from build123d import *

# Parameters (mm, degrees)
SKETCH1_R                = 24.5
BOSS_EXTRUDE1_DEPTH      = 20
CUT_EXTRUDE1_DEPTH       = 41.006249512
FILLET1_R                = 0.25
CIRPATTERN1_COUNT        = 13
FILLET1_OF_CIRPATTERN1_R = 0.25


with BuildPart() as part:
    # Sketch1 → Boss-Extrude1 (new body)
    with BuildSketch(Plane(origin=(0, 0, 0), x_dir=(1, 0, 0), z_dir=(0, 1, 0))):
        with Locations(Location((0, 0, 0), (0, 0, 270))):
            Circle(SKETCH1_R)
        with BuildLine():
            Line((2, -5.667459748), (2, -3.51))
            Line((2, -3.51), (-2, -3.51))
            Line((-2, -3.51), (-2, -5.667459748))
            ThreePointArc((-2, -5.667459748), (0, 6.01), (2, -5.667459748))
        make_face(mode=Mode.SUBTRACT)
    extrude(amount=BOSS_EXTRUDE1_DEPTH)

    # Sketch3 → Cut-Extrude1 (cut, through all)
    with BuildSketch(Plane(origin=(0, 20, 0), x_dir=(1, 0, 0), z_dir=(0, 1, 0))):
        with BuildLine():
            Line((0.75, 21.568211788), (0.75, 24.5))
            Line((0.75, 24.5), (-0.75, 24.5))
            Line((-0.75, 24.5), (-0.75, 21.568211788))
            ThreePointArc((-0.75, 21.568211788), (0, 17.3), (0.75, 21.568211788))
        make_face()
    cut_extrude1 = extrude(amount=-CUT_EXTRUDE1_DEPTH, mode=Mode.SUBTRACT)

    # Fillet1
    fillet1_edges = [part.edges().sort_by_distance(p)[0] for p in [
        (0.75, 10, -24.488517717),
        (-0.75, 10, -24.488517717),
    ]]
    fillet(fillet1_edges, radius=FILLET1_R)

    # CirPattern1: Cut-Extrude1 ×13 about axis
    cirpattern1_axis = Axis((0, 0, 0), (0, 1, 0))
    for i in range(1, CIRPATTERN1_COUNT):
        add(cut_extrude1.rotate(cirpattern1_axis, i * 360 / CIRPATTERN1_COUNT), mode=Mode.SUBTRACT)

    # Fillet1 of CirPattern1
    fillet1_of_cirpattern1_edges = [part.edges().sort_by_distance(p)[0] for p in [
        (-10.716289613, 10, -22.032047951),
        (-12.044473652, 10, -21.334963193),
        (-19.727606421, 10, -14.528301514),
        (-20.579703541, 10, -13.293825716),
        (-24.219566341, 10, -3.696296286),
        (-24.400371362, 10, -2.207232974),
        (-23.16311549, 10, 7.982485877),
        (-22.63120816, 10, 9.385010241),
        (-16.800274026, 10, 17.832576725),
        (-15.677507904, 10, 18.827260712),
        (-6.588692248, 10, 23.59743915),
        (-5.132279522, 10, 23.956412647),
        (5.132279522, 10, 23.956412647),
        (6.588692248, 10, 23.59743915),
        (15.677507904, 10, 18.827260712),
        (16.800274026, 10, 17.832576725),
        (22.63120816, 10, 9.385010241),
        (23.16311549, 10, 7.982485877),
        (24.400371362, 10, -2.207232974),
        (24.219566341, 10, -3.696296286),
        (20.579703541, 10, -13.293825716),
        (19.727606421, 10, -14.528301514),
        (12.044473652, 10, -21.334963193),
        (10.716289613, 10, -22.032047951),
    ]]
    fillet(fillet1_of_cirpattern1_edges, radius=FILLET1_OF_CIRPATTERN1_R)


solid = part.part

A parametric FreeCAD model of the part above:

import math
import FreeCAD as App
import Part
import Sketcher

V = App.Vector


def edges_at(feature, points):
    """Names of the edges that pass closest to the given points."""
    edges = feature.Shape.Edges
    near = lambda p: min(range(len(edges)), key=lambda i: edges[i].distToShape(Part.Vertex(*p))[0])
    return sorted({f"Edge{near(p) + 1}" for p in points})

doc = App.newDocument("Part")
params = doc.addObject("Spreadsheet::Sheet", "Params")
for row, (alias, value) in enumerate([
    ("sketch1_diameter", "49 mm"),
    ("sketch1_width", "4 mm"),
    ("sketch1_radius", "6.01 mm"),
    ("pad1_length", "20 mm"),
    ("sketch2_radius", "2.2 mm"),
    ("sketch2_width", "1.5 mm"),
    ("fillet_radius", "0.25 mm"),
    ("fillet2_radius", "0.25 mm"),
], start=1):
    params.set(f"A{row}", alias)
    params.set(f"B{row}", "=" + value)
    params.setAlias(f"B{row}", alias)

body = doc.addObject("PartDesign::Body", "Body")

# Sketch on XZ plane
sketch1 = doc.addObject("Sketcher::SketchObject", "Sketch")
body.addObject(sketch1)
sketch1.AttachmentSupport = (doc.XZ_Plane, [""])
sketch1.MapMode = "FlatFace"
sketch1.addGeometry(Part.Circle(V(0, 0, 0), V(0, 0, 1), 24.5), False)
sketch1.addGeometry(Part.ArcOfCircle(Part.Circle(V(0, 0, 0), V(0, 0, 1), 6), math.radians(109), math.radians(431)), False)
sketch1.addGeometry(Part.LineSegment(V(2, 5.7, 0), V(2, 3.5, 0)), False)
sketch1.addGeometry(Part.LineSegment(V(2, 3.5, 0), V(-2, 3.5, 0)), False)
sketch1.addGeometry(Part.LineSegment(V(-2, 3.5, 0), V(-2, 5.7, 0)), False)
sketch1.addConstraint(Sketcher.Constraint("Coincident", 1, 2, 2, 1))
sketch1.addConstraint(Sketcher.Constraint("Coincident", 2, 2, 3, 1))
sketch1.addConstraint(Sketcher.Constraint("Coincident", 3, 2, 4, 1))
sketch1.addConstraint(Sketcher.Constraint("Coincident", 4, 2, 1, 1))
sketch1.addConstraint(Sketcher.Constraint("Vertical", 2))
sketch1.addConstraint(Sketcher.Constraint("Horizontal", 3))
sketch1.addConstraint(Sketcher.Constraint("Vertical", 4))
sketch1.addConstraint(Sketcher.Constraint("Coincident", 0, 3, -1, 1))
sketch1.addConstraint(Sketcher.Constraint("Coincident", 1, 3, -1, 1))
sketch1.addConstraint(Sketcher.Constraint("Horizontal", 1, 2, 4, 2))
sketch1.addConstraint(Sketcher.Constraint("Diameter", 0, 49.0))
sketch1.addConstraint(Sketcher.Constraint("DistanceX", 3, 2, 3, 1, 4.0))
sketch1.addConstraint(Sketcher.Constraint("Radius", 1, 6.01))
sketch1.addConstraint(Sketcher.Constraint("DistanceY", -1, 1, 2, 2, 3.51))
sketch1.setExpression("Constraints[10]", "Params.sketch1_diameter")
sketch1.setExpression("Constraints[11]", "Params.sketch1_width")
sketch1.setExpression("Constraints[12]", "Params.sketch1_radius")
pad1 = doc.addObject("PartDesign::Pad", "Pad")
body.addObject(pad1)
pad1.Profile = sketch1
pad1.setExpression("Length", "Params.pad1_length")
pad1.Reversed = True

# Sketch on XZ plane
sketch2 = doc.addObject("Sketcher::SketchObject", "Sketch001")
body.addObject(sketch2)
sketch2.AttachmentSupport = (doc.XZ_Plane, [""])
sketch2.MapMode = "FlatFace"
sketch2.AttachmentOffset = App.Placement(V(0, 0, -20), App.Rotation())
sketch2.addGeometry(Part.LineSegment(V(0.8, -21.6, 0), V(0.8, -24.5, 0)), False)
sketch2.addGeometry(Part.LineSegment(V(0.8, -24.5, 0), V(-0.8, -24.5, 0)), False)
sketch2.addGeometry(Part.LineSegment(V(-0.8, -24.5, 0), V(-0.8, -21.6, 0)), False)
sketch2.addGeometry(Part.ArcOfCircle(Part.Circle(V(0, -19.5, 0), V(0, 0, 1), 2.2), math.radians(-70), math.radians(250)), False)
sketch2.addConstraint(Sketcher.Constraint("Coincident", 0, 2, 1, 1))
sketch2.addConstraint(Sketcher.Constraint("Coincident", 1, 2, 2, 1))
sketch2.addConstraint(Sketcher.Constraint("Coincident", 2, 2, 3, 2))
sketch2.addConstraint(Sketcher.Constraint("Coincident", 3, 1, 0, 1))
sketch2.addConstraint(Sketcher.Constraint("Vertical", 0))
sketch2.addConstraint(Sketcher.Constraint("Horizontal", 1))
sketch2.addConstraint(Sketcher.Constraint("Vertical", 2))
sketch2.addConstraint(Sketcher.Constraint("Symmetric", 2, 2, 3, 1, -2))
sketch2.addConstraint(Sketcher.Constraint("Radius", 3, 2.2))
sketch2.addConstraint(Sketcher.Constraint("DistanceX", 1, 2, 1, 1, 1.5))
sketch2.addConstraint(Sketcher.Constraint("DistanceY", 0, 2, 3, 3, 5.0))
sketch2.addConstraint(Sketcher.Constraint("DistanceY", 3, 3, -1, 1, 19.5))
sketch2.setExpression("Constraints[8]", "Params.sketch2_radius")
sketch2.setExpression("Constraints[9]", "Params.sketch2_width")
pocket1 = doc.addObject("PartDesign::Pocket", "Pocket")
body.addObject(pocket1)
pocket1.Profile = sketch2
pocket1.Type = "ThroughAll"
pocket1.Reversed = True
doc.recompute()

fillet = doc.addObject("PartDesign::Fillet", "Fillet")
body.addObject(fillet)
fillet.Base = (pocket1, edges_at(pocket1, [(0.75, 10, -24.489), (-0.75, 10, -24.489)]))
fillet.setExpression("Radius", "Params.fillet_radius")
doc.recompute()

polarpattern = doc.addObject("PartDesign::PolarPattern", "PolarPattern")
body.addObject(polarpattern)
polarpattern.Originals = [pocket1]
polarpattern.Axis = (doc.Y_Axis, [""])
polarpattern.Angle = 360
polarpattern.Occurrences = 13
body.Tip = polarpattern
doc.recompute()

fillet2 = doc.addObject("PartDesign::Fillet", "Fillet001")
body.addObject(fillet2)
fillet2.Base = (polarpattern, edges_at(polarpattern, [
    (-10.716, 10, -22.032),
    (-12.044, 10, -21.335),
    (-19.728, 10, -14.528),
    (-20.58, 10, -13.294),
    (-24.22, 10, -3.696),
    (-24.4, 10, -2.207),
    (-23.163, 10, 7.982),
    (-22.631, 10, 9.385),
    (-16.8, 10, 17.833),
    (-15.678, 10, 18.827),
    (-6.589, 10, 23.597),
    (-5.132, 10, 23.956),
    (5.132, 10, 23.956),
    (6.589, 10, 23.597),
    (15.678, 10, 18.827),
    (16.8, 10, 17.833),
    (22.631, 10, 9.385),
    (23.163, 10, 7.982),
    (24.4, 10, -2.207),
    (24.22, 10, -3.696),
    (20.58, 10, -13.294),
    (19.728, 10, -14.528),
    (12.044, 10, -21.335),
    (10.716, 10, -22.032),
]))
fillet2.setExpression("Radius", "Params.fillet2_radius")

doc.recompute()
